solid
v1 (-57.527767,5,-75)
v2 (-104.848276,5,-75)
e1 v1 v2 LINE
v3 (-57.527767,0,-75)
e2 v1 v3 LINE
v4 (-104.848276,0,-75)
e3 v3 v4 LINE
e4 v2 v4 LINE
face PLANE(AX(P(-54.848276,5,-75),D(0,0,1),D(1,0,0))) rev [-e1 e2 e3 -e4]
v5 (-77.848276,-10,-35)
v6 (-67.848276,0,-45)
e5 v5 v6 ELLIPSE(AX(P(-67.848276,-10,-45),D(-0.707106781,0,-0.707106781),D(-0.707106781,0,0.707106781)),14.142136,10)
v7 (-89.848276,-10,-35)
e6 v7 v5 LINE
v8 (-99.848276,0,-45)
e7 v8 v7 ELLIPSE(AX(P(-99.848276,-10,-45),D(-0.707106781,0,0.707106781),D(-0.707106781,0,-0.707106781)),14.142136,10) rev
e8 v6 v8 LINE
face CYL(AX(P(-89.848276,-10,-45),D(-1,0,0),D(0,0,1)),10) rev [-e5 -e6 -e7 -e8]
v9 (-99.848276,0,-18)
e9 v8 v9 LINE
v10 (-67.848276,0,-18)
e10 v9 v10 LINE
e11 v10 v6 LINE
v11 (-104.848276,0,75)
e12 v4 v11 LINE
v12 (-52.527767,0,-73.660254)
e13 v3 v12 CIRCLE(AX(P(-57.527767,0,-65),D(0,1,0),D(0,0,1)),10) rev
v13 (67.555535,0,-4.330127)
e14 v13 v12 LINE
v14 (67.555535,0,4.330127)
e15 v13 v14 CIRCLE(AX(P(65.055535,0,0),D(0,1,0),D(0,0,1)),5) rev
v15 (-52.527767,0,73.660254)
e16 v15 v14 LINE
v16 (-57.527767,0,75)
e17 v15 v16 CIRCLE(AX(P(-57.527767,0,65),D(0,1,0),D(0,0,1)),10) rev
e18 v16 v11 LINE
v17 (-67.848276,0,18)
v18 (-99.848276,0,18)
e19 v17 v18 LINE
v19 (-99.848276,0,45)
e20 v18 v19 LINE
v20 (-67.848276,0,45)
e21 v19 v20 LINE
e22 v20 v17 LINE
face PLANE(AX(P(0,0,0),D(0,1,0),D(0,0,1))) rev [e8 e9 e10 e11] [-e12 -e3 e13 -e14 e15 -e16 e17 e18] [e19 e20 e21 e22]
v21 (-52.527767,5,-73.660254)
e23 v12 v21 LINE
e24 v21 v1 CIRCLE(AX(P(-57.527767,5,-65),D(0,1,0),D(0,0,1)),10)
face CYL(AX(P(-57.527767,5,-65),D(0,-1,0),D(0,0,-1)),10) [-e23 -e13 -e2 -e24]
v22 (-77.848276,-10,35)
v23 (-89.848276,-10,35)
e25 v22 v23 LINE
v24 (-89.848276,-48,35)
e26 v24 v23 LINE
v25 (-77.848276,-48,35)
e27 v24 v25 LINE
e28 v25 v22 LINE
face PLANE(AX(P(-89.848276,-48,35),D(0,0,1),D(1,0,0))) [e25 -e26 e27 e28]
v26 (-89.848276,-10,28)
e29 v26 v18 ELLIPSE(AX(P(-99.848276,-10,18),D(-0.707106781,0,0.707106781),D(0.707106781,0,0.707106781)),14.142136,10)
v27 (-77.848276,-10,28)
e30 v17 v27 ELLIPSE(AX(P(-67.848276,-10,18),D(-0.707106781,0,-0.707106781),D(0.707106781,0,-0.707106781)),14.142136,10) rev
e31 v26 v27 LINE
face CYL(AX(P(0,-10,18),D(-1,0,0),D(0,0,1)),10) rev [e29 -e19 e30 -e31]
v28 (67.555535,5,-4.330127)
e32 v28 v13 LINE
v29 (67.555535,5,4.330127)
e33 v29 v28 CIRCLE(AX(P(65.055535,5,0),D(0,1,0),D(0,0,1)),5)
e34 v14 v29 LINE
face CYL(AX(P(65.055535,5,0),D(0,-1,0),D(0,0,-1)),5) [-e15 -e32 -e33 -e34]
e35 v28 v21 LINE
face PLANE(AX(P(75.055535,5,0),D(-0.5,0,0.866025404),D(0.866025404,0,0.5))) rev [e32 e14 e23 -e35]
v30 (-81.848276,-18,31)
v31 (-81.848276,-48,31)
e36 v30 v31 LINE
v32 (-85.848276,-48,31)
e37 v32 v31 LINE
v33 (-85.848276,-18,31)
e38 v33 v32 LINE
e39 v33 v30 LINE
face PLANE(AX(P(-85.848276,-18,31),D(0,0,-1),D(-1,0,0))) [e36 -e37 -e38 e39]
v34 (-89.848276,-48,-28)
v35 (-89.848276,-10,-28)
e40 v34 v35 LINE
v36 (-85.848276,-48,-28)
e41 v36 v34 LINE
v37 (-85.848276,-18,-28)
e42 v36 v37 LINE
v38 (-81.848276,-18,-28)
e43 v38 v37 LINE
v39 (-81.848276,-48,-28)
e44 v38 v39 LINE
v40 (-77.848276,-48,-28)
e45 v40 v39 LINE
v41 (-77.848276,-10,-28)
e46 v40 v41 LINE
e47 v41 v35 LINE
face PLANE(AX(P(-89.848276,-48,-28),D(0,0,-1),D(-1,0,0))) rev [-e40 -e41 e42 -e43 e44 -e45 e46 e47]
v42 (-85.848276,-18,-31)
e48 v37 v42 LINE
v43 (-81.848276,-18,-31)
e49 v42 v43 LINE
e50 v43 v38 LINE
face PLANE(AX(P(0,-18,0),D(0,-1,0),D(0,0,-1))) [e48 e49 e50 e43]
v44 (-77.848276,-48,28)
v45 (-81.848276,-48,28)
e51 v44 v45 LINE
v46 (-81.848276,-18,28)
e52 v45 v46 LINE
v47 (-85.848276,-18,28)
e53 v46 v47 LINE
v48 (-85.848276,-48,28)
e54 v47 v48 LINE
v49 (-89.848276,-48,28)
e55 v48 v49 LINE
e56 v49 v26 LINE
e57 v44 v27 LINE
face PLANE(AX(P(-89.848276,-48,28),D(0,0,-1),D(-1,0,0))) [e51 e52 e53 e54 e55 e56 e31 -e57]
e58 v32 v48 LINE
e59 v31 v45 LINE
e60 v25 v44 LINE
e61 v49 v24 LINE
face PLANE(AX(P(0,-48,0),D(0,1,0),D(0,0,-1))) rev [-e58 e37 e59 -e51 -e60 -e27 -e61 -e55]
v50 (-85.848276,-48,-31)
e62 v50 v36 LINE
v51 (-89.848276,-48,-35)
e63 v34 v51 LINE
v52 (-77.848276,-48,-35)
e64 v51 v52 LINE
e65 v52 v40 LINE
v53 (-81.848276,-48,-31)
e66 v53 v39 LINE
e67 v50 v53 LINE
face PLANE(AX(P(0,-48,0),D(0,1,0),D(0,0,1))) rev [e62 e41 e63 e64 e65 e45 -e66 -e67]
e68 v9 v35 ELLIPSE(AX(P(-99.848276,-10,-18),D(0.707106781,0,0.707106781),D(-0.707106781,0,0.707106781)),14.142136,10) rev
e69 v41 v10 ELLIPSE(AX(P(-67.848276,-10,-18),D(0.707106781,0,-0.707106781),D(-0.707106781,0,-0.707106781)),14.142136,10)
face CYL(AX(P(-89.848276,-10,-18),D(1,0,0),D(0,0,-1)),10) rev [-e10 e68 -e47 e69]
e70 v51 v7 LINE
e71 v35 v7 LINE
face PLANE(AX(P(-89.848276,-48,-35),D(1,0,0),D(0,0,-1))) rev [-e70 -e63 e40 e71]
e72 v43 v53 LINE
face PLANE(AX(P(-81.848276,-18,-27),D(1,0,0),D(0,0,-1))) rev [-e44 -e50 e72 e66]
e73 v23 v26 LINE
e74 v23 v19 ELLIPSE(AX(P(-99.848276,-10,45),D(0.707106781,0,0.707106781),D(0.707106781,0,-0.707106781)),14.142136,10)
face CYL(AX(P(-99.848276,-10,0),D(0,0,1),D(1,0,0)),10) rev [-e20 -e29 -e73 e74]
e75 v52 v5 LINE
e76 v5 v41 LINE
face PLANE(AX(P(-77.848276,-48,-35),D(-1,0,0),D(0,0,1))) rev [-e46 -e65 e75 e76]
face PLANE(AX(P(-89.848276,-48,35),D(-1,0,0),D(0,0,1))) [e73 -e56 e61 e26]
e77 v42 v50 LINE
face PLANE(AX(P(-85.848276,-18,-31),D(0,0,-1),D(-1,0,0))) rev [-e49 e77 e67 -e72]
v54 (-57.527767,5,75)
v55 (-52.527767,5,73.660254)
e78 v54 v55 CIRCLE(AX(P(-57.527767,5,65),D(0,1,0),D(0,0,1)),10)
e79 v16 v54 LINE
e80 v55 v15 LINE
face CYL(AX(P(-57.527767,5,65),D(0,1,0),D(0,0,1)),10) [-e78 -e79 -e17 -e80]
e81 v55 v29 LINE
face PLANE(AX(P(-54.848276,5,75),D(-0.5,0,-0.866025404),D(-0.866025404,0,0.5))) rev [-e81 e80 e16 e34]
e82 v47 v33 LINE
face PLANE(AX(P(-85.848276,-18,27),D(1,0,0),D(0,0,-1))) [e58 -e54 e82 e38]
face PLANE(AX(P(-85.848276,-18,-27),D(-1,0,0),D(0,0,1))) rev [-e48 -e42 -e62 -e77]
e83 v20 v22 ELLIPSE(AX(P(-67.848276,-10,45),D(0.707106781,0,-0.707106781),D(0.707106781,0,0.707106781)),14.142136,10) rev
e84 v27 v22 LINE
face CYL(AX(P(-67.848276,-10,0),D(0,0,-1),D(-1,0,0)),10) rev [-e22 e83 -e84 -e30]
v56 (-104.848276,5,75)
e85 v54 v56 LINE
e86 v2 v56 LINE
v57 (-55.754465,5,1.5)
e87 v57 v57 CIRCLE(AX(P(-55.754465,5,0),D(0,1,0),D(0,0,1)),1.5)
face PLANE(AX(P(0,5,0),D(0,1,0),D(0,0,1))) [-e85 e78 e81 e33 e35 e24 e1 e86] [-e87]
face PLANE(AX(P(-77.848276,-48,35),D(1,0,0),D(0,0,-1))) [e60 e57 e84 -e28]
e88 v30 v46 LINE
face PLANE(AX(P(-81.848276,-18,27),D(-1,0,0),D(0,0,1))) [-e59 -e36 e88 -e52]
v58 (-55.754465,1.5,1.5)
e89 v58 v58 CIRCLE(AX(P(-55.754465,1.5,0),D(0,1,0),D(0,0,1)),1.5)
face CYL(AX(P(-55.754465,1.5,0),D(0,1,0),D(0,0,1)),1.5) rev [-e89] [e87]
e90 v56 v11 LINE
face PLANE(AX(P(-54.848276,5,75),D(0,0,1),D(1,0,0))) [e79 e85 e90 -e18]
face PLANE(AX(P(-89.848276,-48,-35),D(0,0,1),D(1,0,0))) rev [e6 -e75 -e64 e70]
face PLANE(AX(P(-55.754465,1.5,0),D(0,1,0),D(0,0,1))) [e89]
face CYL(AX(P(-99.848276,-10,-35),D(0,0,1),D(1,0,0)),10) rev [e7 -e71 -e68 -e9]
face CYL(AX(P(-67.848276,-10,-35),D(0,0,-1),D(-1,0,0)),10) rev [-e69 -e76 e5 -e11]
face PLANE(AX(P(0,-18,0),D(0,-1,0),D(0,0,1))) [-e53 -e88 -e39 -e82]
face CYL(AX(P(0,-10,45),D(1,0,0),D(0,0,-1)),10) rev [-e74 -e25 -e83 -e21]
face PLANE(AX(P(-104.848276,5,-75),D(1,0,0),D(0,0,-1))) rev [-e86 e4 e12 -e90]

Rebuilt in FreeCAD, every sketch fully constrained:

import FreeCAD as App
import Part
import Sketcher
Q = App.Units.Quantity


def edges_at(feature, points):
    """Names of the edges that pass closest to the given points."""
    edges = feature.Shape.Edges
    near = lambda p: min(range(len(edges)), key=lambda i: edges[i].distToShape(Part.Vertex(*p))[0])
    return sorted({f"Edge{near(p) + 1}" for p in points})

doc = App.newDocument("Part")
body = doc.addObject("PartDesign::Body", "Body")

sketch1 = body.newObject("Sketcher::SketchObject", "Sketch")
sketch1.AttachmentSupport = (doc.getObject("XZ_Plane"), [""])
sketch1.MapMode = "FlatFace"
sketch1.addGeometry([
    Part.LineSegment(App.Vector(75, 0, 0), App.Vector(-55, -75, 0)),
    Part.LineSegment(App.Vector(-55, -75, 0), App.Vector(-105, -75, 0)),
    Part.LineSegment(App.Vector(-105, -75, 0), App.Vector(-105, 75, 0)),
    Part.LineSegment(App.Vector(-105, 75, 0), App.Vector(-55, 75, 0)),
    Part.LineSegment(App.Vector(-55, 75, 0), App.Vector(75, 0, 0)),
], False)
sketch1.addConstraint([
    Sketcher.Constraint("Coincident", 0, 2, 1, 1),
    Sketcher.Constraint("Coincident", 1, 2, 2, 1),
    Sketcher.Constraint("Coincident", 2, 2, 3, 1),
    Sketcher.Constraint("Coincident", 3, 2, 4, 1),
    Sketcher.Constraint("Coincident", 4, 2, 0, 1),
    Sketcher.Constraint("Horizontal", 1),
    Sketcher.Constraint("Vertical", 2),
    Sketcher.Constraint("Horizontal", 3),
    Sketcher.Constraint("Symmetric", 0, 2, 3, 2, -1),
    Sketcher.Constraint("PointOnObject", 4, 2, -1),
    Sketcher.Constraint("DistanceX", 1, 2, 1, 1, Q("50 mm")),
    Sketcher.Constraint("DistanceY", 2, 1, 2, 2, Q("150 mm")),
    Sketcher.Constraint("Angle", 0, Q("-150 deg")),
    Sketcher.Constraint("DistanceX", 0, 2, -1, 1, Q("54.848276 mm")),
])
pad1 = body.newObject("PartDesign::Pad", "Pad")
pad1.Profile = sketch1
pad1.Length = 5
pad1.Reversed = True
doc.recompute()

fillet = body.newObject("PartDesign::Fillet", "Fillet")
fillet.Base = (pad1, edges_at(pad1, [(75.056, 2.5, 0)]))
fillet.Radius = 5
doc.recompute()

fillet2 = body.newObject("PartDesign::Fillet", "Fillet001")
fillet2.Base = (fillet, edges_at(fillet, [(-54.848, 2.5, -75)]))
fillet2.Radius = 10
doc.recompute()

fillet3 = body.newObject("PartDesign::Fillet", "Fillet002")
fillet3.Base = (fillet2, edges_at(fillet2, [(-54.848, 2.5, 75)]))
fillet3.Radius = 10

sketch2 = body.newObject("Sketcher::SketchObject", "Sketch001")
sketch2.AttachmentSupport = (doc.getObject("XZ_Plane"), [""])
sketch2.MapMode = "FlatFace"
sketch2.AttachmentOffset = App.Placement(App.Vector(0, 0, -5), App.Rotation())
sketch2.addGeometry(Part.Circle(App.Vector(-55.8, 0, 0), App.Vector(0, 0, 1), 1.5), False)
sketch2.addConstraint([
    Sketcher.Constraint("PointOnObject", 0, 3, -1),
    Sketcher.Constraint("Diameter", 0, Q("3 mm")),
    Sketcher.Constraint("DistanceX", 0, 3, -1, 1, Q("55.754465 mm")),
])
pocket1 = body.newObject("PartDesign::Pocket", "Pocket")
pocket1.Profile = sketch2
pocket1.Length = 3.5
pocket1.Reversed = True

sketch3 = body.newObject("Sketcher::SketchObject", "Sketch002")
sketch3.AttachmentSupport = (doc.getObject("XZ_Plane"), [""])
sketch3.MapMode = "FlatFace"
sketch3.addGeometry([
    Part.LineSegment(App.Vector(-90, -28, 0), App.Vector(-90, -35, 0)),
    Part.LineSegment(App.Vector(-90, -35, 0), App.Vector(-78, -35, 0)),
    Part.LineSegment(App.Vector(-78, -35, 0), App.Vector(-78, -28, 0)),
    Part.LineSegment(App.Vector(-78, -28, 0), App.Vector(-90, -28, 0)),
], False)
sketch3.addConstraint([
    Sketcher.Constraint("Coincident", 0, 2, 1, 1),
    Sketcher.Constraint("Coincident", 1, 2, 2, 1),
    Sketcher.Constraint("Coincident", 2, 2, 3, 1),
    Sketcher.Constraint("Coincident", 3, 2, 0, 1),
    Sketcher.Constraint("Vertical", 0),
    Sketcher.Constraint("Horizontal", 1),
    Sketcher.Constraint("Vertical", 2),
    Sketcher.Constraint("Horizontal", 3),
    Sketcher.Constraint("DistanceX", 1, 1, 1, 2, Q("12 mm")),
    Sketcher.Constraint("DistanceY", 0, 2, 0, 1, Q("7 mm")),
    Sketcher.Constraint("DistanceY", 0, 2, -1, 1, Q("35 mm")),
    Sketcher.Constraint("DistanceX", 0, 2, -1, 1, Q("89.848276 mm")),
])
pad2 = body.newObject("PartDesign::Pad", "Pad001")
pad2.Profile = sketch3
pad2.Length = 48
doc.recompute()

fillet4 = body.newObject("PartDesign::Fillet", "Fillet003")
fillet4.Base = (pad2, edges_at(pad2, [
    (-89.848, 0, -31.5),
    (-83.848, 0, -35),
    (-77.848, 0, -31.5),
    (-83.848, 0, -28),
]))
fillet4.Radius = 10

sketch4 = body.newObject("Sketcher::SketchObject", "Sketch003")
sketch4.AttachmentSupport = (doc.getObject("XZ_Plane"), [""])
sketch4.MapMode = "FlatFace"
sketch4.AttachmentOffset = App.Placement(App.Vector(0, 0, 48), App.Rotation())
sketch4.addGeometry([
    Part.LineSegment(App.Vector(-85.8, -27, 0), App.Vector(-85.8, -31, 0)),
    Part.LineSegment(App.Vector(-85.8, -31, 0), App.Vector(-81.8, -31, 0)),
    Part.LineSegment(App.Vector(-81.8, -31, 0), App.Vector(-81.8, -27, 0)),
    Part.LineSegment(App.Vector(-81.8, -27, 0), App.Vector(-85.8, -27, 0)),
], False)
sketch4.addConstraint([
    Sketcher.Constraint("Coincident", 0, 2, 1, 1),
    Sketcher.Constraint("Coincident", 1, 2, 2, 1),
    Sketcher.Constraint("Coincident", 2, 2, 3, 1),
    Sketcher.Constraint("Coincident", 3, 2, 0, 1),
    Sketcher.Constraint("Vertical", 0),
    Sketcher.Constraint("Horizontal", 1),
    Sketcher.Constraint("Vertical", 2),
    Sketcher.Constraint("Horizontal", 3),
    Sketcher.Constraint("Equal", 3, 0),
    Sketcher.Constraint("DistanceX", 1, 1, 1, 2, Q("4 mm")),
    Sketcher.Constraint("DistanceY", 0, 2, -1, 1, Q("31 mm")),
    Sketcher.Constraint("DistanceX", 0, 2, -1, 1, Q("85.848276 mm")),
])
pocket2 = body.newObject("PartDesign::Pocket", "Pocket001")
pocket2.Profile = sketch4
pocket2.Length = 30
doc.recompute()

mirrored = body.newObject("PartDesign::Mirrored", "Mirrored")
mirrored.Originals = [pad2, pocket2]
mirrored.MirrorPlane = (doc.getObject("XY_Plane"), [""])
body.Tip = mirrored
doc.recompute()

fillet5 = body.newObject("PartDesign::Fillet", "Fillet004")
fillet5.Base = (mirrored, edges_at(mirrored, [
    (-89.848, 0, 31.5),
    (-83.848, 0, 35),
    (-77.848, 0, 31.5),
    (-83.848, 0, 28),
]))
fillet5.Radius = 10

doc.recompute()
